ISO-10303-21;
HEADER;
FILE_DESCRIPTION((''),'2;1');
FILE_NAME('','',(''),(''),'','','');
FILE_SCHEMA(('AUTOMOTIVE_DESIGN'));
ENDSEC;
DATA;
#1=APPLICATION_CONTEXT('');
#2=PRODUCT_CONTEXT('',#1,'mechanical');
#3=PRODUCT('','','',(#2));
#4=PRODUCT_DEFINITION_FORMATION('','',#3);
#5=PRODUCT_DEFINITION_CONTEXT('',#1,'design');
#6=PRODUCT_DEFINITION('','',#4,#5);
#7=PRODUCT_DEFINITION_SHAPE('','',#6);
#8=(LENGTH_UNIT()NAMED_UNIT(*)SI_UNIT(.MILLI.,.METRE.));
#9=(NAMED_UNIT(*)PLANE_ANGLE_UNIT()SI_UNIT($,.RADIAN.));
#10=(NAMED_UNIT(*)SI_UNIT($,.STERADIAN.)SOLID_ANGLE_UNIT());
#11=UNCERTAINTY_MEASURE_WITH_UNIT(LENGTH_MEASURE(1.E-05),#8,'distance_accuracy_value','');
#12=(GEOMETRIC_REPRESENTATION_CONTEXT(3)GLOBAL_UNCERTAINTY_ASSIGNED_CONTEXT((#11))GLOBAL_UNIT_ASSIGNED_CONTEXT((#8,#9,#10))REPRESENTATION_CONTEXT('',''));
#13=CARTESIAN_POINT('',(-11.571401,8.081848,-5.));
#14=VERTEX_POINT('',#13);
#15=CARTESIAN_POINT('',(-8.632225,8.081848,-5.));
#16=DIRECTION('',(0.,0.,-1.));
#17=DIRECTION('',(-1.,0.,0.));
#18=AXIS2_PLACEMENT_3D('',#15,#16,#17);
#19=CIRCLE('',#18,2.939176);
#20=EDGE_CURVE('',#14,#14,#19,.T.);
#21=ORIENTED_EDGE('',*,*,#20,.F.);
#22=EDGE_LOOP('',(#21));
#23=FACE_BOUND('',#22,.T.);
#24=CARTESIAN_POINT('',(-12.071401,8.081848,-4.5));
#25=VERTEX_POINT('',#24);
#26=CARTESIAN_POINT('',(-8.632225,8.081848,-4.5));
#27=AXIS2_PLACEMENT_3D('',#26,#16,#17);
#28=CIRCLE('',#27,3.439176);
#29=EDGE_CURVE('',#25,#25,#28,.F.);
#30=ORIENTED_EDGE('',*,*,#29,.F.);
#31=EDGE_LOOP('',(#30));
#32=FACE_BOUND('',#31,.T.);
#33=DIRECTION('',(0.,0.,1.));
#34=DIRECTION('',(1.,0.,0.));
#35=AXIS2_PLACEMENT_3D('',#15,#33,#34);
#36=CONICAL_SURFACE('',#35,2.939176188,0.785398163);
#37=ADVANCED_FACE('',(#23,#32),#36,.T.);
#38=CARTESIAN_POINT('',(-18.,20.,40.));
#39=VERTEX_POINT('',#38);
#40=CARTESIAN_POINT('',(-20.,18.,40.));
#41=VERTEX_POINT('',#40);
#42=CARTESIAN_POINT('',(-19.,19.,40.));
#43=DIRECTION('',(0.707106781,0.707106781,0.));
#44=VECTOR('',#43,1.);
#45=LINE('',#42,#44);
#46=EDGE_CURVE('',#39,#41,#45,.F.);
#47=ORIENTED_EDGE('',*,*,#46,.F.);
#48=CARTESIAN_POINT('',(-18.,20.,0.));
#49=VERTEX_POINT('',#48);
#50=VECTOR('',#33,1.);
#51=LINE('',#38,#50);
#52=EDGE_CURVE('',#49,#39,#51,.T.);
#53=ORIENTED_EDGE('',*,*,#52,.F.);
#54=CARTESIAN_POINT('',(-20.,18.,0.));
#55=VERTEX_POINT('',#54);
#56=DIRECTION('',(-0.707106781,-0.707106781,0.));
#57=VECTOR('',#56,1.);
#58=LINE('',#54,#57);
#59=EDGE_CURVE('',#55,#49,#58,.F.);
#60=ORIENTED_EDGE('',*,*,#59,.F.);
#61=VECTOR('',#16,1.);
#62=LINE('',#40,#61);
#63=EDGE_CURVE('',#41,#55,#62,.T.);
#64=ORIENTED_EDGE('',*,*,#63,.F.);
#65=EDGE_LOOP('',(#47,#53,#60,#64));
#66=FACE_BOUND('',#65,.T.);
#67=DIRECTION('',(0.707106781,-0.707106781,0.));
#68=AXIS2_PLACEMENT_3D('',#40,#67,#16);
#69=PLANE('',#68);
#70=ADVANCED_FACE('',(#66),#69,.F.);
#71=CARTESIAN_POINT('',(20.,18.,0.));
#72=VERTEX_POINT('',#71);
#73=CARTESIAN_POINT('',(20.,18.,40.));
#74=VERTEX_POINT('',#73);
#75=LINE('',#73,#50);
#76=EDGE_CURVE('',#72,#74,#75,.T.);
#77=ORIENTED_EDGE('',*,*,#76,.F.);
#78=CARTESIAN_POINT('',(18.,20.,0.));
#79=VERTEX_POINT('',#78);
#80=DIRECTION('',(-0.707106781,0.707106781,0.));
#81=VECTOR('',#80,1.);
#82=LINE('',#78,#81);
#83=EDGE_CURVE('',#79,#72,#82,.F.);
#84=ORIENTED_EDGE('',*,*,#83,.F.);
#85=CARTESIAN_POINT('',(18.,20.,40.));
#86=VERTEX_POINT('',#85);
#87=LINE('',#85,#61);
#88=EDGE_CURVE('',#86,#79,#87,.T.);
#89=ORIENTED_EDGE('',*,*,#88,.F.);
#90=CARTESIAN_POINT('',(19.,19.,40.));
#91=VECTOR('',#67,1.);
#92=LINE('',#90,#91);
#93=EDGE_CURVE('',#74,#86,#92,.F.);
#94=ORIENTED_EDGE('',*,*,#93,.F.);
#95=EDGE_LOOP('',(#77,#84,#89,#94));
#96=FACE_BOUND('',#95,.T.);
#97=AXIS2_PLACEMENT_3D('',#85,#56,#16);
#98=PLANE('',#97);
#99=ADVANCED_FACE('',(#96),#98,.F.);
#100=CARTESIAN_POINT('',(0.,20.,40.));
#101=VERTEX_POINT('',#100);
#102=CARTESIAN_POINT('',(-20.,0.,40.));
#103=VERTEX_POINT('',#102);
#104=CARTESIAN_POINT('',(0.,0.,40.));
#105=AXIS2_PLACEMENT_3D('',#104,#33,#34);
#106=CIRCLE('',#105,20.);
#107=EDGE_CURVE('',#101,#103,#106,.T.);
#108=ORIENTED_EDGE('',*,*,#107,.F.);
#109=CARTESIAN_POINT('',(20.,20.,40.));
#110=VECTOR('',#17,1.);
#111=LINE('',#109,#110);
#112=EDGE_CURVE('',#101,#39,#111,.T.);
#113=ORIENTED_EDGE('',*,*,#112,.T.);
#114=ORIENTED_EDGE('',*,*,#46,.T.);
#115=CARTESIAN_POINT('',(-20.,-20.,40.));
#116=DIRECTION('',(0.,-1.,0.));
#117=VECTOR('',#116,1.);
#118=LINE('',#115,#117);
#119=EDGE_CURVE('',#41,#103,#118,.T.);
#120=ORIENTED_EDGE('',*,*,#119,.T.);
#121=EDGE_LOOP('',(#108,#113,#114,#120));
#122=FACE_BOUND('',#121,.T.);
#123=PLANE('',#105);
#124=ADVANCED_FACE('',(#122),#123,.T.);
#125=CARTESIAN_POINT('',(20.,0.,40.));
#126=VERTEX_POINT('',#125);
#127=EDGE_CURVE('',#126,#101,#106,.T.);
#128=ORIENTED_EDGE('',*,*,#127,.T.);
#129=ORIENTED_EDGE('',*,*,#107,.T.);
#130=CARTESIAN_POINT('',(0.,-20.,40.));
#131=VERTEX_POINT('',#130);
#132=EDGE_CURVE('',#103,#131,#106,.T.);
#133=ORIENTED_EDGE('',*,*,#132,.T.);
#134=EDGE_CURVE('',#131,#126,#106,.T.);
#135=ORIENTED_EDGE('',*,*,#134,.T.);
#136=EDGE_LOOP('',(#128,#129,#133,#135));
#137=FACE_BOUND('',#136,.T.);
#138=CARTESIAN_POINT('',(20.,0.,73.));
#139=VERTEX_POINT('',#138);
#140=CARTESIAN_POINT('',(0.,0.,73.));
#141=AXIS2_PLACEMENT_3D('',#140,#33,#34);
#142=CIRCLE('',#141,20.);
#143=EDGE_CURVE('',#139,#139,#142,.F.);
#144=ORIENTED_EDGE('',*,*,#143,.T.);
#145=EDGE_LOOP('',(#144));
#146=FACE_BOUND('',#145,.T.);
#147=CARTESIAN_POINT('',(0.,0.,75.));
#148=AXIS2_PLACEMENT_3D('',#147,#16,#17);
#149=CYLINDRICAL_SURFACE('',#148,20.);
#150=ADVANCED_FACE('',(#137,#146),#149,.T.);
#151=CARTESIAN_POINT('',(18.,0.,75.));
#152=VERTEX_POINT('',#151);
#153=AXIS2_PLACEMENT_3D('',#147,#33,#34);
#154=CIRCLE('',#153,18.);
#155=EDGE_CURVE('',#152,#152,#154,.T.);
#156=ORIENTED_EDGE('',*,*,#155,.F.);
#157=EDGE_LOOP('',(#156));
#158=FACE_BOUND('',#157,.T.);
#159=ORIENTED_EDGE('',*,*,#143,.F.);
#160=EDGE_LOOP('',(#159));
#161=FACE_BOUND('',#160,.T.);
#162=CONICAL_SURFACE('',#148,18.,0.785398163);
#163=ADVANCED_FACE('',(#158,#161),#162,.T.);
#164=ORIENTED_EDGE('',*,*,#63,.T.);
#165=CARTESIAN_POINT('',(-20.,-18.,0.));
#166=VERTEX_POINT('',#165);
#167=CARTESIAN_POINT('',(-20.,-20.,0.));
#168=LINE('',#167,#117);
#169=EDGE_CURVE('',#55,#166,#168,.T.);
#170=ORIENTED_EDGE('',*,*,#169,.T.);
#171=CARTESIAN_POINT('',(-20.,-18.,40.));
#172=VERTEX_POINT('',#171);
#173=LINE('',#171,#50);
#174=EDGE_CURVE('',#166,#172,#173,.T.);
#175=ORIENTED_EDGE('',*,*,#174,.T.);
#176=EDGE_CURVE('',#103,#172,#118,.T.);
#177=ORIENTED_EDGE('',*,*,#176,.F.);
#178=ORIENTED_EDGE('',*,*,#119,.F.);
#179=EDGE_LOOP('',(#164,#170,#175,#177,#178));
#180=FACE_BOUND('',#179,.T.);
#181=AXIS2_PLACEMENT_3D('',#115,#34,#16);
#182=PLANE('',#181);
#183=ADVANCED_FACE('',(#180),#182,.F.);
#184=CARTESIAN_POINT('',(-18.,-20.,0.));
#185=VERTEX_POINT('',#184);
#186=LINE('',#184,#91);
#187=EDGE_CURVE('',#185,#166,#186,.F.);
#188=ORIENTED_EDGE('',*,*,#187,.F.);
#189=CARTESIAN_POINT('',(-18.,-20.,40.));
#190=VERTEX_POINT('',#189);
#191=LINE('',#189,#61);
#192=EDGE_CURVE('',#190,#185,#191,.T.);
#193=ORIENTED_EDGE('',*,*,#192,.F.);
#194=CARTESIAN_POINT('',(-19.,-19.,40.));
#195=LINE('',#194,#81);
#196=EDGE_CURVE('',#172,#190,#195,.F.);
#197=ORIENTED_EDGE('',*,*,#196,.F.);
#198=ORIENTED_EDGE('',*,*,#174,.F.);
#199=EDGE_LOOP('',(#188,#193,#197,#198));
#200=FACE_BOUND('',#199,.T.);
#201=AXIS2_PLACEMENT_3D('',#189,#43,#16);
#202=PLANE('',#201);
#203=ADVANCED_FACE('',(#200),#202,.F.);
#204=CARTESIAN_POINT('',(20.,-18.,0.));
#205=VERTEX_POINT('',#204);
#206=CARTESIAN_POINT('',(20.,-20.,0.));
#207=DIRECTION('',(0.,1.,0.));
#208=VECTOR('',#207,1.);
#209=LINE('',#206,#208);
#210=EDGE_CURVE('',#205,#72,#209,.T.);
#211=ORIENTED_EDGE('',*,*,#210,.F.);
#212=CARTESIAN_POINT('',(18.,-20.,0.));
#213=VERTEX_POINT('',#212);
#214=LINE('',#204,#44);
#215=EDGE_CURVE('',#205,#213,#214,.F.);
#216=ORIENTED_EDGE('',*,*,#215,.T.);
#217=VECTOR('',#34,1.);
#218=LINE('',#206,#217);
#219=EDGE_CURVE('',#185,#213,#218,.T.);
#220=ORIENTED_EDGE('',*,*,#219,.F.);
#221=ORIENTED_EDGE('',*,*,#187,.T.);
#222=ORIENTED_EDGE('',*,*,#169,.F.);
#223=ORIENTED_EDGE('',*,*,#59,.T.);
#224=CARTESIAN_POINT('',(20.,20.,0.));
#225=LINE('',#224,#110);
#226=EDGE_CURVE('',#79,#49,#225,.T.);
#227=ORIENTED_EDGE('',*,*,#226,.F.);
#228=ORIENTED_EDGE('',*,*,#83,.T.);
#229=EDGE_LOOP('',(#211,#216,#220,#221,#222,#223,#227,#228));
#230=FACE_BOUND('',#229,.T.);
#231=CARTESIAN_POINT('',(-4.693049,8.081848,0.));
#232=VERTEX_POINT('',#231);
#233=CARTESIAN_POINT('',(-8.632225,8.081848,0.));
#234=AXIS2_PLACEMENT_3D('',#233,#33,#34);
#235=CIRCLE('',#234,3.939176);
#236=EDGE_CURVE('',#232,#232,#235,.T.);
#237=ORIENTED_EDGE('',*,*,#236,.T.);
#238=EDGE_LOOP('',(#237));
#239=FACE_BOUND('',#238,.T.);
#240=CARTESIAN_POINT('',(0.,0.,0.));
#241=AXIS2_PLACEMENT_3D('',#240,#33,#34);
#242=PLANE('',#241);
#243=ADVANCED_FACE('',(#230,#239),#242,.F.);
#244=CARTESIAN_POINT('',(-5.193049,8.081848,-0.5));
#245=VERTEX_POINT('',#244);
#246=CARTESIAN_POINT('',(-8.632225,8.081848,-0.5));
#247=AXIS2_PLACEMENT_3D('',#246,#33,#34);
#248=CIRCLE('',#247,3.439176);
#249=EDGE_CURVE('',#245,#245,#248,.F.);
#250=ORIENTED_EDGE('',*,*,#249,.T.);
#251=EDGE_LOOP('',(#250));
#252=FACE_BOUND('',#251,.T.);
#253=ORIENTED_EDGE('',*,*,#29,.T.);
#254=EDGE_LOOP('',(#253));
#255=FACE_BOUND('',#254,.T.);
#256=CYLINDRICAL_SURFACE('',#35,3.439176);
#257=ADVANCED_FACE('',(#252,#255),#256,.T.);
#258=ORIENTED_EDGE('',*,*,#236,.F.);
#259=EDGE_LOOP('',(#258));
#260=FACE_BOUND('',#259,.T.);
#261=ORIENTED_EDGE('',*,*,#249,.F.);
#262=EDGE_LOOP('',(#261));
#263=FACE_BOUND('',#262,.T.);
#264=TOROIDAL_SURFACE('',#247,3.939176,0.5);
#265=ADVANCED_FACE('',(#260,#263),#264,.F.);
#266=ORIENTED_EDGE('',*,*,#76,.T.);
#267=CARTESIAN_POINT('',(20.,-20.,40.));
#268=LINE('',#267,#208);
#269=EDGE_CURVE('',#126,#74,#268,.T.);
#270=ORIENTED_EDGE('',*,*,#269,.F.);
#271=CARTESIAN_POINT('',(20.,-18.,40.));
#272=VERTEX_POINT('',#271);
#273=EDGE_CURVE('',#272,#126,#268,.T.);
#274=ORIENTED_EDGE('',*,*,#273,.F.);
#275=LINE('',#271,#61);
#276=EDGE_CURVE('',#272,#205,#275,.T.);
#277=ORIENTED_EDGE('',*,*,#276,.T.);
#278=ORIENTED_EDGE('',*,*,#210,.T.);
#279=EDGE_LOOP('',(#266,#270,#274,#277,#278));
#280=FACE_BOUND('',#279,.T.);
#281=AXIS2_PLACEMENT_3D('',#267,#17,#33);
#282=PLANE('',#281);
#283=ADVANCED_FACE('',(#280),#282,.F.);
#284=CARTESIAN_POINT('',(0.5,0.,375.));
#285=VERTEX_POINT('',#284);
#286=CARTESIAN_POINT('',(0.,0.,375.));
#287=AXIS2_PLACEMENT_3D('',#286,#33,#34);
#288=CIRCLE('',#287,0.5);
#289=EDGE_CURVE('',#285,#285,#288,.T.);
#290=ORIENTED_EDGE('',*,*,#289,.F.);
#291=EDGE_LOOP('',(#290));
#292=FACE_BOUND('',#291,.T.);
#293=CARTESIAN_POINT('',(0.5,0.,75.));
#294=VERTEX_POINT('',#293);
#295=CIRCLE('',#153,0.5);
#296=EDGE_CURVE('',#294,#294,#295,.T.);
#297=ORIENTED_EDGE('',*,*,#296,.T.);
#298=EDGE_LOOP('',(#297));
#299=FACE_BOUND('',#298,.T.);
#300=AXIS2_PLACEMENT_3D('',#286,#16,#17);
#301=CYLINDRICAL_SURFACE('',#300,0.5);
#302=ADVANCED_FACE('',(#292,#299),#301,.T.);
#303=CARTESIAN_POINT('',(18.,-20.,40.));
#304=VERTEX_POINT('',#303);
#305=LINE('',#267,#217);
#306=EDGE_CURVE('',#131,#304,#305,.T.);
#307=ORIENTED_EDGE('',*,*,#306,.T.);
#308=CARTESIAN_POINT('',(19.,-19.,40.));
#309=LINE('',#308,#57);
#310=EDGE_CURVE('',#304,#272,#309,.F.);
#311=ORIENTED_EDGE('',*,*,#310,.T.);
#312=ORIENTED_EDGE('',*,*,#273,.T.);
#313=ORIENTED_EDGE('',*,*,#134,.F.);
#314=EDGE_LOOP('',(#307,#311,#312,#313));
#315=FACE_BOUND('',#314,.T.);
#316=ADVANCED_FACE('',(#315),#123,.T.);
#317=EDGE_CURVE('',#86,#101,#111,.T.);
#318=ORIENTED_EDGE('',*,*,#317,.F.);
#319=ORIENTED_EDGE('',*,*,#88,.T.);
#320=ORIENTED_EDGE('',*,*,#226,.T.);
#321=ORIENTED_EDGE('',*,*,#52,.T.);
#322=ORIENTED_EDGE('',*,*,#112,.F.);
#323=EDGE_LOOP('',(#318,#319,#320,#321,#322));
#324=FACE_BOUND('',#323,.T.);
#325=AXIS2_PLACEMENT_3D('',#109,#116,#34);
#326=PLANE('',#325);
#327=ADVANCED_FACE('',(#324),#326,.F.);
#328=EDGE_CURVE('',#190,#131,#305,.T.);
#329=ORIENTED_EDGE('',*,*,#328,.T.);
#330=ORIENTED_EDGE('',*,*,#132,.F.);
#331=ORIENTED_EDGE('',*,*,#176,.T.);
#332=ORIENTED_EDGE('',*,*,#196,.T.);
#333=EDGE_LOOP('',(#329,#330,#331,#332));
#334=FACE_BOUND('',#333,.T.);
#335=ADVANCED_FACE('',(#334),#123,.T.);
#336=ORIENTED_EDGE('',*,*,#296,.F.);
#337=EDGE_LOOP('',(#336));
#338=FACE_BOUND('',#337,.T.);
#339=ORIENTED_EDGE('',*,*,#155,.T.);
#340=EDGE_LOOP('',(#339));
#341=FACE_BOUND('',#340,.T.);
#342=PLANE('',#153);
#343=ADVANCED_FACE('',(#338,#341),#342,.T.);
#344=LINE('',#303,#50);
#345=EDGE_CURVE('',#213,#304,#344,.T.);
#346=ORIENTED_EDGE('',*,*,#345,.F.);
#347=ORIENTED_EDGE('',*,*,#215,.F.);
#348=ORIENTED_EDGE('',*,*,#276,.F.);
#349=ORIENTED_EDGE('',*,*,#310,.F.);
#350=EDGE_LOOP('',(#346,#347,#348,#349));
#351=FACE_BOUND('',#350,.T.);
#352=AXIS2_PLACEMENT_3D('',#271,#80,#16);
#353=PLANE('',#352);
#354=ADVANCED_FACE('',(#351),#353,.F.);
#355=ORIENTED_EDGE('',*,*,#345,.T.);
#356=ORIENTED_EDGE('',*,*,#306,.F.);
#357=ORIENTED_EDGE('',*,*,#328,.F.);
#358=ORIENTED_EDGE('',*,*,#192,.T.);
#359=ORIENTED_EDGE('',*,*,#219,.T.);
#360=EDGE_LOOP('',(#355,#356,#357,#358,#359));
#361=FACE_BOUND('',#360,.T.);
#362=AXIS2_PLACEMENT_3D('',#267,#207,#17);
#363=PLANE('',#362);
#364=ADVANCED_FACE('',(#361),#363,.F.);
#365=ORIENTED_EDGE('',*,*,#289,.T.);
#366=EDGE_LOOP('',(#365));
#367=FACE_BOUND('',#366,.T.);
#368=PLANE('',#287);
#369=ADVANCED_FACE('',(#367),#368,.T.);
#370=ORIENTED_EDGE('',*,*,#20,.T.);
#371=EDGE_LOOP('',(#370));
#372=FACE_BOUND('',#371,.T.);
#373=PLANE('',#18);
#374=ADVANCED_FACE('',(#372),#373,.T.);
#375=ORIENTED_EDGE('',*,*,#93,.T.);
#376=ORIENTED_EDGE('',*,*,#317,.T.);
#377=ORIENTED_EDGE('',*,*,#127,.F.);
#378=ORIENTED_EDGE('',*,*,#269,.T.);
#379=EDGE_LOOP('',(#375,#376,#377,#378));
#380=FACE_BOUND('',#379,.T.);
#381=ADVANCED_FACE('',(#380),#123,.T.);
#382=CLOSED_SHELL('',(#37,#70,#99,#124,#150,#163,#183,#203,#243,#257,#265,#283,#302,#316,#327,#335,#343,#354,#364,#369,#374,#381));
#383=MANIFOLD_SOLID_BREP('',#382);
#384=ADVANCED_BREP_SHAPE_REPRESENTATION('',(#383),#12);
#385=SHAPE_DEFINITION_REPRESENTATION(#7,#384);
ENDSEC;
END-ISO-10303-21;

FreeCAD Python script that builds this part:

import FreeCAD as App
import Part
import Sketcher
from FreeCAD import Vector
Q = App.Units.Quantity


def edges_at(feature, points):
    """Names of the edges that pass closest to the given points."""
    edges = feature.Shape.Edges
    near = lambda p: min(range(len(edges)), key=lambda i: edges[i].distToShape(Part.Vertex(*p))[0])
    return sorted({f"Edge{near(p) + 1}" for p in points})

doc = App.newDocument("Part")
body = doc.addObject("PartDesign::Body", "Body")

sketch1 = body.newObject("Sketcher::SketchObject", "Sketch")
sketch1.AttachmentSupport = (doc.getObject("XY_Plane"), [""])
sketch1.MapMode = "FlatFace"
sketch1.addGeometry(Part.LineSegment(Vector(-20, 20, 0), Vector(-20, -20, 0)), False)
sketch1.addGeometry(Part.LineSegment(Vector(-20, -20, 0), Vector(20, -20, 0)), False)
sketch1.addGeometry(Part.LineSegment(Vector(20, -20, 0), Vector(20, 20, 0)), False)
sketch1.addGeometry(Part.LineSegment(Vector(20, 20, 0), Vector(-20, 20, 0)), False)
sketch1.addConstraint(Sketcher.Constraint("Coincident", 0, 2, 1, 1))
sketch1.addConstraint(Sketcher.Constraint("Coincident", 1, 2, 2, 1))
sketch1.addConstraint(Sketcher.Constraint("Coincident", 2, 2, 3, 1))
sketch1.addConstraint(Sketcher.Constraint("Coincident", 3, 2, 0, 1))
sketch1.addConstraint(Sketcher.Constraint("Vertical", 0))
sketch1.addConstraint(Sketcher.Constraint("Horizontal", 1))
sketch1.addConstraint(Sketcher.Constraint("Vertical", 2))
sketch1.addConstraint(Sketcher.Constraint("Horizontal", 3))
sketch1.addConstraint(Sketcher.Constraint("Symmetric", 0, 2, 2, 2, -1, 1))
sketch1.addConstraint(Sketcher.Constraint("Equal", 3, 0))
sketch1.addConstraint(Sketcher.Constraint("DistanceX", 1, 1, 1, 2, Q("40 mm")))
pad1 = body.newObject("PartDesign::Pad", "Pad")
pad1.Profile = sketch1
pad1.Length = 40

sketch2 = body.newObject("Sketcher::SketchObject", "Sketch001")
sketch2.AttachmentSupport = (doc.getObject("XY_Plane"), [""])
sketch2.MapMode = "FlatFace"
sketch2.AttachmentOffset = App.Placement(Vector(0, 0, 40), App.Rotation())
sketch2.addGeometry(Part.Circle(Vector(0, 0, 0), Vector(0, 0, 1), 20), False)
sketch2.addConstraint(Sketcher.Constraint("Coincident", 0, 3, -1, 1))
sketch2.addConstraint(Sketcher.Constraint("Diameter", 0, Q("40 mm")))
pad2 = body.newObject("PartDesign::Pad", "Pad001")
pad2.Profile = sketch2
pad2.Length = 35

sketch3 = body.newObject("Sketcher::SketchObject", "Sketch002")
sketch3.AttachmentSupport = (doc.getObject("XY_Plane"), [""])
sketch3.MapMode = "FlatFace"
sketch3.addGeometry(Part.Circle(Vector(-8.6, 8.1, 0), Vector(0, 0, 1), 3.4), False)
sketch3.addConstraint(Sketcher.Constraint("Diameter", 0, Q("6.878352 mm")))
sketch3.addConstraint(Sketcher.Constraint("DistanceY", -1, 1, 0, 3, Q("8.081848 mm")))
sketch3.addConstraint(Sketcher.Constraint("DistanceX", 0, 3, -1, 1, Q("8.632225 mm")))
pad3 = body.newObject("PartDesign::Pad", "Pad002")
pad3.Profile = sketch3
pad3.Length = 5
pad3.Reversed = True
doc.recompute()

fillet = body.newObject("PartDesign::Fillet", "Fillet")
fillet.Base = (pad3, edges_at(pad3, [(-5.193, 8.082, 0)]))
fillet.Radius = 0.5
doc.recompute()

chamfer = body.newObject("PartDesign::Chamfer", "Chamfer")
chamfer.Base = (fillet, edges_at(fillet, [(-5.193, 8.082, -5)]))
chamfer.Size = 0.5
doc.recompute()

chamfer2 = body.newObject("PartDesign::Chamfer", "Chamfer001")
chamfer2.Base = (chamfer, edges_at(chamfer, [
    (-20, 20, 20),
    (20, 20, 20),
    (20, -20, 20),
    (-20, -20, 20),
]))
chamfer2.Size = 2
doc.recompute()

chamfer3 = body.newObject("PartDesign::Chamfer", "Chamfer002")
chamfer3.Base = (chamfer2, edges_at(chamfer2, [(-20, 0, 75)]))
chamfer3.Size = 2

sketch4 = body.newObject("Sketcher::SketchObject", "Sketch003")
sketch4.AttachmentSupport = (doc.getObject("XY_Plane"), [""])
sketch4.MapMode = "FlatFace"
sketch4.AttachmentOffset = App.Placement(Vector(0, 0, 75), App.Rotation())
sketch4.addGeometry(Part.Circle(Vector(0, 0, 0), Vector(0, 0, 1), 0.5), False)
sketch4.addConstraint(Sketcher.Constraint("Coincident", 0, 3, -1, 1))
sketch4.addConstraint(Sketcher.Constraint("Diameter", 0, Q("1 mm")))
pad4 = body.newObject("PartDesign::Pad", "Pad003")
pad4.Profile = sketch4
pad4.Length = 300

doc.recompute()
